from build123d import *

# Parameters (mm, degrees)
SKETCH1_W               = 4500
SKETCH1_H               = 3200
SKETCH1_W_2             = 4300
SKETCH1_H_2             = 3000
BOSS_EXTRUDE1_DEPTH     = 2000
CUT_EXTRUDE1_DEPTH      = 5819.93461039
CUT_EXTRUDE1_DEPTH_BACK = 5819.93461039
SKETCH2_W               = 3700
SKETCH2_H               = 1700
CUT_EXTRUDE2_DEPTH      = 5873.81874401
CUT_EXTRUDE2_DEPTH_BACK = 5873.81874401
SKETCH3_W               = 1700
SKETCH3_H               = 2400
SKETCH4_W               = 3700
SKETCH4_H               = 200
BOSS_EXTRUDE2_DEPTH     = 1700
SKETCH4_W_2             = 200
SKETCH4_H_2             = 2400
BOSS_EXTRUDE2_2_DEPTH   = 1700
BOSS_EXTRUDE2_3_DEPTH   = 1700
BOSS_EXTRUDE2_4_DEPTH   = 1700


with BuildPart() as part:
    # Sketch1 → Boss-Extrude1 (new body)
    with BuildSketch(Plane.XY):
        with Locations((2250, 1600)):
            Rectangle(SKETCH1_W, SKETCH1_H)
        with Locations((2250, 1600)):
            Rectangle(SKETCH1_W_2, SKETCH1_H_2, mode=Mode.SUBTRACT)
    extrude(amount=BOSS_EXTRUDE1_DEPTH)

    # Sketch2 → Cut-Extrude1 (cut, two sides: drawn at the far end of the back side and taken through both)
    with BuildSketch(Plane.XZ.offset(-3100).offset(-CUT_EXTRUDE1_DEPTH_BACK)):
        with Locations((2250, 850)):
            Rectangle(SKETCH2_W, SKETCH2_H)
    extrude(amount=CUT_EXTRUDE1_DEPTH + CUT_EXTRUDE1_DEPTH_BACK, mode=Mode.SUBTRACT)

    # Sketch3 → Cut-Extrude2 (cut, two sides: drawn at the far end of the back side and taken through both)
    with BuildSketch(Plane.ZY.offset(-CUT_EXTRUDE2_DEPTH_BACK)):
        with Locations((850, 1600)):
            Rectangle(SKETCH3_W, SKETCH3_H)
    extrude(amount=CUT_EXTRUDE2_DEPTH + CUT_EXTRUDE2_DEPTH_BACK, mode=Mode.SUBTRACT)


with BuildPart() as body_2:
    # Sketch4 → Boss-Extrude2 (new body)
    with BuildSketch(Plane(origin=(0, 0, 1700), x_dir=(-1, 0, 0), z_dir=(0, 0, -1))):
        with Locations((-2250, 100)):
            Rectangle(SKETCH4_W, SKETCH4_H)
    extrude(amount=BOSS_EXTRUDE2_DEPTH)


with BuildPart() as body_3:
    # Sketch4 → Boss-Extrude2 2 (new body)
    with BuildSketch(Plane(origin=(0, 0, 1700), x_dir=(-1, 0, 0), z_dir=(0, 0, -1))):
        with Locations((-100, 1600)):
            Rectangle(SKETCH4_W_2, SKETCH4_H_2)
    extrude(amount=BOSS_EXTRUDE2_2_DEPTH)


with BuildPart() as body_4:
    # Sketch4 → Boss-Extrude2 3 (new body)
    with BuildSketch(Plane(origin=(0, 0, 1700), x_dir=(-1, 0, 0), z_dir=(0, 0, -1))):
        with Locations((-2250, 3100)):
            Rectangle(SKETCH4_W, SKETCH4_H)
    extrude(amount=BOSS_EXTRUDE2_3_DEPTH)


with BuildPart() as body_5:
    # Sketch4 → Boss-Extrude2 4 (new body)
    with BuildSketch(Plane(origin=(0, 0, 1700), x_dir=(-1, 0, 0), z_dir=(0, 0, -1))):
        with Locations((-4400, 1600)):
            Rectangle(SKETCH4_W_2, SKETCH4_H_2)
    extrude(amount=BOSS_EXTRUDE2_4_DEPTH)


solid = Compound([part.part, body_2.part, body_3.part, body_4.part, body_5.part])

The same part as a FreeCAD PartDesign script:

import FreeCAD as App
import Part
import Sketcher
from FreeCAD import Vector


def add_polygon(sketch, points):
    """Adds a closed chain of lines whose ends are joined by coincident constraints."""
    first, n = sketch.GeometryCount, len(points)
    for a, b in zip(points, points[1:] + points[:1]):
        sketch.addGeometry(Part.LineSegment(App.Vector(*a, 0), App.Vector(*b, 0)), False)
    for i in range(n):
        sketch.addConstraint(Sketcher.Constraint("Coincident", first + i, 2, first + (i + 1) % n, 1))

doc = App.newDocument("Part")
params = doc.addObject("Spreadsheet::Sheet", "Params")
for row, (alias, value) in enumerate([
    ("sketch1_width", "4500 mm"),
    ("sketch1_width2", "4300 mm"),
    ("sketch1_height", "3200 mm"),
    ("sketch1_height2", "3000 mm"),
    ("pad1_length", "2000 mm"),
    ("sketch2_width", "3700 mm"),
    ("sketch2_height", "1700 mm"),
    ("sketch3_width", "2400 mm"),
    ("sketch3_height", "1700 mm"),
    ("sketch4_width", "3700 mm"),
    ("sketch4_height", "200 mm"),
    ("pad2_length", "1700 mm"),
    ("sketch5_width", "200 mm"),
    ("sketch5_height", "2400 mm"),
    ("pad3_length", "1700 mm"),
    ("sketch6_width", "3700 mm"),
    ("sketch6_height", "200 mm"),
    ("pad4_length", "1700 mm"),
    ("sketch7_width", "200 mm"),
    ("sketch7_height", "2400 mm"),
    ("pad5_length", "1700 mm"),
], start=1):
    params.set(f"A{row}", alias)
    params.set(f"B{row}", "=" + value)
    params.setAlias(f"B{row}", alias)

body = doc.addObject("PartDesign::Body", "Body")

# Sketch on XY plane
sketch1 = body.newObject("Sketcher::SketchObject", "Sketch")
sketch1.AttachmentSupport = (doc.getObject("XY_Plane"), [""])
sketch1.MapMode = "FlatFace"
add_polygon(sketch1, [(0, 3200), (0, 0), (4500, 0), (4500, 3200)])  # lines 0-3
add_polygon(sketch1, [(4400, 100), (100, 100), (100, 3100), (4400, 3100)])  # lines 4-7
sketch1.addConstraint([
    Sketcher.Constraint("Vertical", 0),
    Sketcher.Constraint("Horizontal", 1),
    Sketcher.Constraint("Vertical", 2),
    Sketcher.Constraint("Horizontal", 3),
    Sketcher.Constraint("Horizontal", 4),
    Sketcher.Constraint("Vertical", 5),
    Sketcher.Constraint("Horizontal", 6),
    Sketcher.Constraint("Vertical", 7),
    Sketcher.Constraint("Coincident", 0, 2, -1, 1),
    Sketcher.Constraint("DistanceX", 1, 1, 1, 2, 4500.0),
    Sketcher.Constraint("DistanceX", 4, 2, 4, 1, 4300.0),
    Sketcher.Constraint("DistanceY", 0, 2, 0, 1, 3200.0),
    Sketcher.Constraint("DistanceY", 5, 1, 5, 2, 3000.0),
    Sketcher.Constraint("DistanceX", -1, 1, 4, 2, 100.0),
    Sketcher.Constraint("DistanceY", -1, 1, 4, 2, 100.0),
])
sketch1.setExpression("Constraints[17]", "Params.sketch1_width")
sketch1.setExpression("Constraints[18]", "Params.sketch1_width2")
sketch1.setExpression("Constraints[19]", "Params.sketch1_height")
sketch1.setExpression("Constraints[20]", "Params.sketch1_height2")
pad1 = body.newObject("PartDesign::Pad", "Pad")
pad1.Profile = sketch1
pad1.setExpression("Length", "Params.pad1_length")

# Sketch on XZ plane
sketch2 = body.newObject("Sketcher::SketchObject", "Sketch001")
sketch2.AttachmentSupport = (doc.getObject("XZ_Plane"), [""])
sketch2.MapMode = "FlatFace"
sketch2.AttachmentOffset = App.Placement(Vector(0, 0, -3100), App.Rotation())
add_polygon(sketch2, [(400, 1700), (400, 0), (4100, 0), (4100, 1700)])  # lines 0-3
sketch2.addConstraint([
    Sketcher.Constraint("Vertical", 0),
    Sketcher.Constraint("Horizontal", 1),
    Sketcher.Constraint("Vertical", 2),
    Sketcher.Constraint("Horizontal", 3),
    Sketcher.Constraint("PointOnObject", 0, 2, -1),
    Sketcher.Constraint("DistanceX", 1, 1, 1, 2, 3700.0),
    Sketcher.Constraint("DistanceY", 0, 2, 0, 1, 1700.0),
    Sketcher.Constraint("DistanceX", -1, 1, 0, 2, 400.0),
])
sketch2.setExpression("Constraints[9]", "Params.sketch2_width")
sketch2.setExpression("Constraints[10]", "Params.sketch2_height")
pocket1 = body.newObject("PartDesign::Pocket", "Pocket")
pocket1.Profile = sketch2
pocket1.Type = "ThroughAll"
pocket1.Midplane = True

# Sketch on YZ plane
sketch3 = body.newObject("Sketcher::SketchObject", "Sketch002")
sketch3.AttachmentSupport = (doc.getObject("YZ_Plane"), [""])
sketch3.MapMode = "FlatFace"
add_polygon(sketch3, [(2800, 0), (400, 0), (400, 1700), (2800, 1700)])  # lines 0-3
sketch3.addConstraint([
    Sketcher.Constraint("Horizontal", 0),
    Sketcher.Constraint("Vertical", 1),
    Sketcher.Constraint("Horizontal", 2),
    Sketcher.Constraint("Vertical", 3),
    Sketcher.Constraint("PointOnObject", 0, 2, -1),
    Sketcher.Constraint("DistanceX", 0, 2, 0, 1, 2400.0),
    Sketcher.Constraint("DistanceY", 1, 1, 1, 2, 1700.0),
    Sketcher.Constraint("DistanceX", -1, 1, 0, 2, 400.0),
])
sketch3.setExpression("Constraints[9]", "Params.sketch3_width")
sketch3.setExpression("Constraints[10]", "Params.sketch3_height")
pocket2 = body.newObject("PartDesign::Pocket", "Pocket001")
pocket2.Profile = sketch3
pocket2.Type = "ThroughAll"
pocket2.Midplane = True
body2 = doc.addObject("PartDesign::Body", "Body001")

# Sketch on XY plane
sketch4 = body2.newObject("Sketcher::SketchObject", "Sketch003")
sketch4.AttachmentSupport = (doc.getObject("XY_Plane001"), [""])
sketch4.MapMode = "FlatFace"
sketch4.AttachmentOffset = App.Placement(Vector(0, 0, 1700), App.Rotation())
add_polygon(sketch4, [(4100, 200), (4100, 0), (400, 0), (400, 200)])  # lines 0-3
sketch4.addConstraint([
    Sketcher.Constraint("Vertical", 0),
    Sketcher.Constraint("Horizontal", 1),
    Sketcher.Constraint("Vertical", 2),
    Sketcher.Constraint("Horizontal", 3),
    Sketcher.Constraint("PointOnObject", 0, 2, -1),
    Sketcher.Constraint("DistanceX", 1, 2, 1, 1, 3700.0),
    Sketcher.Constraint("DistanceY", 0, 2, 0, 1, 200.0),
    Sketcher.Constraint("DistanceX", -1, 1, 0, 2, 4100.0),
])
sketch4.setExpression("Constraints[9]", "Params.sketch4_width")
sketch4.setExpression("Constraints[10]", "Params.sketch4_height")
pad2 = body2.newObject("PartDesign::Pad", "Pad001")
pad2.Profile = sketch4
pad2.setExpression("Length", "Params.pad2_length")
pad2.Reversed = True
body3 = doc.addObject("PartDesign::Body", "Body002")

# Sketch on XY plane
sketch5 = body3.newObject("Sketcher::SketchObject", "Sketch004")
sketch5.AttachmentSupport = (doc.getObject("XY_Plane002"), [""])
sketch5.MapMode = "FlatFace"
sketch5.AttachmentOffset = App.Placement(Vector(0, 0, 1700), App.Rotation())
add_polygon(sketch5, [(200, 2800), (200, 400), (0, 400), (0, 2800)])  # lines 0-3
sketch5.addConstraint([
    Sketcher.Constraint("Vertical", 0),
    Sketcher.Constraint("Horizontal", 1),
    Sketcher.Constraint("Vertical", 2),
    Sketcher.Constraint("Horizontal", 3),
    Sketcher.Constraint("PointOnObject", 1, 2, -2),
    Sketcher.Constraint("DistanceX", 1, 2, 1, 1, 200.0),
    Sketcher.Constraint("DistanceY", 0, 2, 0, 1, 2400.0),
    Sketcher.Constraint("DistanceY", -1, 1, 0, 2, 400.0),
])
sketch5.setExpression("Constraints[9]", "Params.sketch5_width")
sketch5.setExpression("Constraints[10]", "Params.sketch5_height")
pad3 = body3.newObject("PartDesign::Pad", "Pad002")
pad3.Profile = sketch5
pad3.setExpression("Length", "Params.pad3_length")
pad3.Reversed = True
body4 = doc.addObject("PartDesign::Body", "Body003")

# Sketch on XY plane
sketch6 = body4.newObject("Sketcher::SketchObject", "Sketch005")
sketch6.AttachmentSupport = (doc.getObject("XY_Plane003"), [""])
sketch6.MapMode = "FlatFace"
sketch6.AttachmentOffset = App.Placement(Vector(0, 0, 1700), App.Rotation())
add_polygon(sketch6, [(4100, 3200), (4100, 3000), (400, 3000), (400, 3200)])  # lines 0-3
sketch6.addConstraint([
    Sketcher.Constraint("Vertical", 0),
    Sketcher.Constraint("Horizontal", 1),
    Sketcher.Constraint("Vertical", 2),
    Sketcher.Constraint("Horizontal", 3),
    Sketcher.Constraint("DistanceX", 1, 2, 1, 1, 3700.0),
    Sketcher.Constraint("DistanceY", 0, 2, 0, 1, 200.0),
    Sketcher.Constraint("DistanceX", -1, 1, 0, 2, 4100.0),
    Sketcher.Constraint("DistanceY", -1, 1, 0, 2, 3000.0),
])
sketch6.setExpression("Constraints[8]", "Params.sketch6_width")
sketch6.setExpression("Constraints[9]", "Params.sketch6_height")
pad4 = body4.newObject("PartDesign::Pad", "Pad003")
pad4.Profile = sketch6
pad4.setExpression("Length", "Params.pad4_length")
pad4.Reversed = True
body5 = doc.addObject("PartDesign::Body", "Body004")

# Sketch on XY plane
sketch7 = body5.newObject("Sketcher::SketchObject", "Sketch006")
sketch7.AttachmentSupport = (doc.getObject("XY_Plane004"), [""])
sketch7.MapMode = "FlatFace"
sketch7.AttachmentOffset = App.Placement(Vector(0, 0, 1700), App.Rotation())
add_polygon(sketch7, [(4500, 2800), (4500, 400), (4300, 400), (4300, 2800)])  # lines 0-3
sketch7.addConstraint([
    Sketcher.Constraint("Vertical", 0),
    Sketcher.Constraint("Horizontal", 1),
    Sketcher.Constraint("Vertical", 2),
    Sketcher.Constraint("Horizontal", 3),
    Sketcher.Constraint("DistanceX", 1, 2, 1, 1, 200.0),
    Sketcher.Constraint("DistanceY", 0, 2, 0, 1, 2400.0),
    Sketcher.Constraint("DistanceX", -1, 1, 0, 2, 4500.0),
    Sketcher.Constraint("DistanceY", -1, 1, 0, 2, 400.0),
])
sketch7.setExpression("Constraints[8]", "Params.sketch7_width")
sketch7.setExpression("Constraints[9]", "Params.sketch7_height")
pad5 = body5.newObject("PartDesign::Pad", "Pad004")
pad5.Profile = sketch7
pad5.setExpression("Length", "Params.pad5_length")
pad5.Reversed = True

doc.recompute()
